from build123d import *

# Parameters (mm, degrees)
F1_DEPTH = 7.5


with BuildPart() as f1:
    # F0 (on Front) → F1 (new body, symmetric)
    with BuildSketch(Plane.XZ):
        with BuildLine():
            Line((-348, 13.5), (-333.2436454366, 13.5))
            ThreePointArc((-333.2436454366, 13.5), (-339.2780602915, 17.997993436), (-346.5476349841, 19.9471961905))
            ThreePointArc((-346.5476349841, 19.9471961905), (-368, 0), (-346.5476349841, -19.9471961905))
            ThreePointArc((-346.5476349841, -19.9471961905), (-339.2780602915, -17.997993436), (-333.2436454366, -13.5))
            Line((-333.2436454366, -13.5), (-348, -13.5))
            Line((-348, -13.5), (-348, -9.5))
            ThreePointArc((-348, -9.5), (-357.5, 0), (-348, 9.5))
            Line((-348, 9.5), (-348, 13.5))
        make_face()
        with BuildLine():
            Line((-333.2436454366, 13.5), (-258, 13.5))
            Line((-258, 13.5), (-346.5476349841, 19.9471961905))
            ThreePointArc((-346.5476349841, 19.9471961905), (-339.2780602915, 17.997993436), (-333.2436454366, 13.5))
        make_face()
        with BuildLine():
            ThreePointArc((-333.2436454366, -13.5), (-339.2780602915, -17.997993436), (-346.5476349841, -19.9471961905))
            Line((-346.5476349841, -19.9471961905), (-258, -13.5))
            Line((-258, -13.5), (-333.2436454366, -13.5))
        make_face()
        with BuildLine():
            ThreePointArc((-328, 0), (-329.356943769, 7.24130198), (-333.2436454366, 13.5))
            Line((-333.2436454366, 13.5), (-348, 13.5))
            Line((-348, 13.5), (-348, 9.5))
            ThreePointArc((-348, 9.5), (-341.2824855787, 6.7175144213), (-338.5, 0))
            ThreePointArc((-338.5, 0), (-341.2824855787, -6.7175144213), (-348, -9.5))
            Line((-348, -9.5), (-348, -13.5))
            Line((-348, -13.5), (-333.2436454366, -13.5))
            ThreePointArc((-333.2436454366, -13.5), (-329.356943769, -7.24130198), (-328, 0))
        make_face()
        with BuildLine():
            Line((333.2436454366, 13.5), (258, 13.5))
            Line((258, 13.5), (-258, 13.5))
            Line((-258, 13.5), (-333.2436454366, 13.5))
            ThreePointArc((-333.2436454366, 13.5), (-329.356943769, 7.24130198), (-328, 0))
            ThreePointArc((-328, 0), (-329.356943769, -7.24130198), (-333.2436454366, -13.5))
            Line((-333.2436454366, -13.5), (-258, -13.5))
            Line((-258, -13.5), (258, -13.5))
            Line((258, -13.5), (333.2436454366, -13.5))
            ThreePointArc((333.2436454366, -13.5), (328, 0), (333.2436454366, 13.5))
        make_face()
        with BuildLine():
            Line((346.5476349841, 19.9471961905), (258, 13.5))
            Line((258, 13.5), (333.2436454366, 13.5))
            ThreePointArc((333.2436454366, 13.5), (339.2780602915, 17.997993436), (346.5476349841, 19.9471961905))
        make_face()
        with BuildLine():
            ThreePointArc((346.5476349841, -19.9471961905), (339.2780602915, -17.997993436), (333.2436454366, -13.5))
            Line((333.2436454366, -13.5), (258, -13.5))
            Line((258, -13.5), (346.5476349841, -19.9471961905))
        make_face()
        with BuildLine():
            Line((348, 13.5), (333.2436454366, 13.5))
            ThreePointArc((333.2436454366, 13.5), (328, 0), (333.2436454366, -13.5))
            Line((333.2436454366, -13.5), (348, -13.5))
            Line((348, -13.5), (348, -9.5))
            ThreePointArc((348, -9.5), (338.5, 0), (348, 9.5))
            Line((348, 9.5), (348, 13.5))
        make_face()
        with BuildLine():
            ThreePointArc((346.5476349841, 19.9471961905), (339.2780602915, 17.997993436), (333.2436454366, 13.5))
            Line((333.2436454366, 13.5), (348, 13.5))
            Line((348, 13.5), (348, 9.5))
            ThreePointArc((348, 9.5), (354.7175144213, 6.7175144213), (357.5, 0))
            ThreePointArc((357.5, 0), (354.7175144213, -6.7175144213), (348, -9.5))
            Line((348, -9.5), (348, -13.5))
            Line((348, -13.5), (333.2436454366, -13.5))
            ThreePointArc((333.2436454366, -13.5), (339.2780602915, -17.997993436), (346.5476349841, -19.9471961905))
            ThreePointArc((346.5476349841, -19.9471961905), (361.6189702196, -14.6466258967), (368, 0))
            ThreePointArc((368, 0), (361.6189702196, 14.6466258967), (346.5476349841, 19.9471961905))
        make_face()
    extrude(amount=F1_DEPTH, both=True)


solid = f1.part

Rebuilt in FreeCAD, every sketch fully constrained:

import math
import FreeCAD as App
import Part
import Sketcher
Q = App.Units.Quantity

doc = App.newDocument("Part")
body = doc.addObject("PartDesign::Body", "Body")

# Sketch on XZ plane
sketch1 = body.newObject("Sketcher::SketchObject", "Sketch")
sketch1.AttachmentSupport = (doc.getObject("XZ_Plane"), [""])
sketch1.MapMode = "FlatFace"
sketch1.addGeometry([
    Part.LineSegment(App.Vector(-258, 13.5, 0), App.Vector(-346.547635, 19.947196, 0)),  # 0
    Part.ArcOfCircle(Part.Circle(App.Vector(-348, 0, 0), App.Vector(0, 0, 1), 20), math.radians(85.835615), math.radians(274.164385)),  # 1
    Part.LineSegment(App.Vector(-346.547635, -19.947196, 0), App.Vector(-258, -13.5, 0)),  # 2
    Part.LineSegment(App.Vector(-258, -13.5, 0), App.Vector(258, -13.5, 0)),  # 3
    Part.LineSegment(App.Vector(258, -13.5, 0), App.Vector(346.547635, -19.947196, 0)),  # 4
    Part.ArcOfCircle(Part.Circle(App.Vector(348, 0, 0), App.Vector(0, 0, 1), 20), math.radians(-94.164385), math.radians(0)),  # 5
    Part.ArcOfCircle(Part.Circle(App.Vector(348, 0, 0), App.Vector(0, 0, 1), 20), math.radians(0), math.radians(94.164385)),  # 6
    Part.LineSegment(App.Vector(346.547635, 19.947196, 0), App.Vector(258, 13.5, 0)),  # 7
    Part.LineSegment(App.Vector(258, 13.5, 0), App.Vector(-258, 13.5, 0)),  # 8
    Part.ArcOfCircle(Part.Circle(App.Vector(348, 0, 0), App.Vector(0, 0, 1), 9.5), math.radians(90), math.radians(270)),  # 9
    Part.ArcOfCircle(Part.Circle(App.Vector(348, 0, 0), App.Vector(0, 0, 1), 9.5), math.radians(0), math.radians(90)),  # 10
    Part.ArcOfCircle(Part.Circle(App.Vector(348, 0, 0), App.Vector(0, 0, 1), 9.5), math.radians(-90), math.radians(0)),  # 11
    Part.ArcOfCircle(Part.Circle(App.Vector(-348, 0, 0), App.Vector(0, 0, 1), 9.5), math.radians(90), math.radians(270)),  # 12
    Part.ArcOfCircle(Part.Circle(App.Vector(-348, 0, 0), App.Vector(0, 0, 1), 9.5), math.radians(0), math.radians(90)),  # 13
    Part.ArcOfCircle(Part.Circle(App.Vector(-348, 0, 0), App.Vector(0, 0, 1), 9.5), math.radians(-90), math.radians(0)),  # 14
], False)
sketch1.addConstraint([
    Sketcher.Constraint("Tangent", 0, 2, 1, 1),
    Sketcher.Constraint("Tangent", 1, 2, 2, 1),
    Sketcher.Constraint("Coincident", 2, 2, 3, 1),
    Sketcher.Constraint("Coincident", 3, 2, 4, 1),
    Sketcher.Constraint("Tangent", 4, 2, 5, 1),
    Sketcher.Constraint("Tangent", 5, 2, 6, 1),
    Sketcher.Constraint("Tangent", 6, 2, 7, 1),
    Sketcher.Constraint("Coincident", 7, 2, 8, 1),
    Sketcher.Constraint("Coincident", 8, 2, 0, 1),
    Sketcher.Constraint("Tangent", 9, 1, 10, 2),
    Sketcher.Constraint("Tangent", 10, 1, 11, 2),
    Sketcher.Constraint("Tangent", 11, 1, 9, 2),
    Sketcher.Constraint("Tangent", 12, 1, 13, 2),
    Sketcher.Constraint("Tangent", 13, 1, 14, 2),
    Sketcher.Constraint("Tangent", 14, 1, 12, 2),
    Sketcher.Constraint("Horizontal", 3),
    Sketcher.Constraint("Horizontal", 8),
    Sketcher.Constraint("Coincident", 9, 3, 5, 3),
    Sketcher.Constraint("Coincident", 12, 3, 1, 3),
    Sketcher.Constraint("Equal", 1, 5),
    Sketcher.Constraint("Equal", 5, 6),
    Sketcher.Constraint("Equal", 11, 12),
    Sketcher.Constraint("Symmetric", 1, 3, 5, 3, -1, 1),
    Sketcher.Constraint("Symmetric", 2, 2, 7, 2, -1, 1),
    Sketcher.Constraint("Symmetric", 1, 2, 4, 2, -2),
    Sketcher.Constraint("PointOnObject", 5, 2, -1),
    Sketcher.Constraint("PointOnObject", 10, 1, -1),
    Sketcher.Constraint("PointOnObject", 13, 1, -1),
    Sketcher.Constraint("Parallel", 0, 4),
    Sketcher.Constraint("Vertical", 11, 3, 9, 1),
    Sketcher.Constraint("Vertical", 9, 1, 11, 1),
    Sketcher.Constraint("Vertical", 14, 3, 12, 1),
    Sketcher.Constraint("Vertical", 12, 1, 14, 1),
    Sketcher.Constraint("Radius", 1, Q("20 mm")),
    Sketcher.Constraint("Radius", 9, Q("9.5 mm")),
    Sketcher.Constraint("DistanceX", 3, 1, 3, 2, Q("516 mm")),
    Sketcher.Constraint("DistanceX", 1, 3, -1, 1, Q("348 mm")),
    Sketcher.Constraint("DistanceY", 3, 2, 7, 2, Q("27 mm")),
])
pad1 = body.newObject("PartDesign::Pad", "Pad")
pad1.Profile = sketch1
pad1.Length = 15
pad1.Midplane = True

doc.recompute()
